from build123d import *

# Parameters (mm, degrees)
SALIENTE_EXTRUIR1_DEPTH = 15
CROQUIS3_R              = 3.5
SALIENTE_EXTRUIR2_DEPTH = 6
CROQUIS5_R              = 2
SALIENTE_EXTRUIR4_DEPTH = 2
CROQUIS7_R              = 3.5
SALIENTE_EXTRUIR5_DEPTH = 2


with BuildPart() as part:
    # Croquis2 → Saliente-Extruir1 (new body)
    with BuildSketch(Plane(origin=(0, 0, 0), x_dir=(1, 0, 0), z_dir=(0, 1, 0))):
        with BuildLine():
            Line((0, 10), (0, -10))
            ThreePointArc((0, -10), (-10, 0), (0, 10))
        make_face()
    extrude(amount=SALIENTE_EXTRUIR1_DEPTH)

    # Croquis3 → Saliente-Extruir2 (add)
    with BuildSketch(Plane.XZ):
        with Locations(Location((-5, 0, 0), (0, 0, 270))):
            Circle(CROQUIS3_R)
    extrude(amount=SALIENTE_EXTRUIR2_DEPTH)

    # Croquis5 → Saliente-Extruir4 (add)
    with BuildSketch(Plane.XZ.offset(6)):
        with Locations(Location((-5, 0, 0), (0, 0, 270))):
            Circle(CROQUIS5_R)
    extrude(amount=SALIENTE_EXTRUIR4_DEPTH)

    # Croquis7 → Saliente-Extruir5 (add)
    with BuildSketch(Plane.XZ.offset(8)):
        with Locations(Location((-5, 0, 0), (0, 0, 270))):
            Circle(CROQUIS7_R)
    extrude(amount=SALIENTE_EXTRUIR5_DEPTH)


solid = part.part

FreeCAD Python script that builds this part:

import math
import FreeCAD as App
import Part
import Sketcher
Q = App.Units.Quantity

doc = App.newDocument("Part")
body = doc.addObject("PartDesign::Body", "Body")

sketch1 = body.newObject("Sketcher::SketchObject", "Sketch")
sketch1.AttachmentSupport = (doc.getObject("XZ_Plane"), [""])
sketch1.MapMode = "FlatFace"
sketch1.addGeometry(Part.LineSegment(App.Vector(0, 10, 0), App.Vector(0, -10, 0)), False)
sketch1.addGeometry(Part.ArcOfCircle(Part.Circle(App.Vector(0, 0, 0), App.Vector(0, 0, 1), 10), math.radians(90), math.radians(270)), False)
sketch1.addConstraint(Sketcher.Constraint("Coincident", 0, 1, 1, 1))
sketch1.addConstraint(Sketcher.Constraint("Coincident", 1, 2, 0, 2))
sketch1.addConstraint(Sketcher.Constraint("Vertical", 0))
sketch1.addConstraint(Sketcher.Constraint("Coincident", 1, 3, -1, 1))
sketch1.addConstraint(Sketcher.Constraint("PointOnObject", 0, 1, -2))
sketch1.addConstraint(Sketcher.Constraint("Radius", 1, Q("10 mm")))
pad1 = body.newObject("PartDesign::Pad", "Pad")
pad1.Profile = sketch1
pad1.Length = 15
pad1.Reversed = True

sketch2 = body.newObject("Sketcher::SketchObject", "Sketch001")
sketch2.AttachmentSupport = (doc.getObject("XZ_Plane"), [""])
sketch2.MapMode = "FlatFace"
sketch2.addGeometry(Part.Circle(App.Vector(-5, 0, 0), App.Vector(0, 0, 1), 3.5), False)
sketch2.addConstraint(Sketcher.Constraint("PointOnObject", 0, 3, -1))
sketch2.addConstraint(Sketcher.Constraint("Diameter", 0, Q("7 mm")))
sketch2.addConstraint(Sketcher.Constraint("DistanceX", 0, 3, -1, 1, Q("5 mm")))
pad2 = body.newObject("PartDesign::Pad", "Pad001")
pad2.Profile = sketch2
pad2.Length = 6

sketch3 = body.newObject("Sketcher::SketchObject", "Sketch002")
sketch3.AttachmentSupport = (doc.getObject("XZ_Plane"), [""])
sketch3.MapMode = "FlatFace"
sketch3.AttachmentOffset = App.Placement(App.Vector(0, 0, 6), App.Rotation())
sketch3.addGeometry(Part.Circle(App.Vector(-5, 0, 0), App.Vector(0, 0, 1), 2), False)
sketch3.addConstraint(Sketcher.Constraint("PointOnObject", 0, 3, -1))
sketch3.addConstraint(Sketcher.Constraint("Diameter", 0, Q("4 mm")))
sketch3.addConstraint(Sketcher.Constraint("DistanceX", 0, 3, -1, 1, Q("5 mm")))
pad3 = body.newObject("PartDesign::Pad", "Pad002")
pad3.Profile = sketch3
pad3.Length = 2

sketch4 = body.newObject("Sketcher::SketchObject", "Sketch003")
sketch4.AttachmentSupport = (doc.getObject("XZ_Plane"), [""])
sketch4.MapMode = "FlatFace"
sketch4.AttachmentOffset = App.Placement(App.Vector(0, 0, 8), App.Rotation())
sketch4.addGeometry(Part.Circle(App.Vector(-5, 0, 0), App.Vector(0, 0, 1), 3.5), False)
sketch4.addConstraint(Sketcher.Constraint("PointOnObject", 0, 3, -1))
sketch4.addConstraint(Sketcher.Constraint("Diameter", 0, Q("7 mm")))
sketch4.addConstraint(Sketcher.Constraint("DistanceX", 0, 3, -1, 1, Q("5 mm")))
pad4 = body.newObject("PartDesign::Pad", "Pad003")
pad4.Profile = sketch4
pad4.Length = 2

doc.recompute()
